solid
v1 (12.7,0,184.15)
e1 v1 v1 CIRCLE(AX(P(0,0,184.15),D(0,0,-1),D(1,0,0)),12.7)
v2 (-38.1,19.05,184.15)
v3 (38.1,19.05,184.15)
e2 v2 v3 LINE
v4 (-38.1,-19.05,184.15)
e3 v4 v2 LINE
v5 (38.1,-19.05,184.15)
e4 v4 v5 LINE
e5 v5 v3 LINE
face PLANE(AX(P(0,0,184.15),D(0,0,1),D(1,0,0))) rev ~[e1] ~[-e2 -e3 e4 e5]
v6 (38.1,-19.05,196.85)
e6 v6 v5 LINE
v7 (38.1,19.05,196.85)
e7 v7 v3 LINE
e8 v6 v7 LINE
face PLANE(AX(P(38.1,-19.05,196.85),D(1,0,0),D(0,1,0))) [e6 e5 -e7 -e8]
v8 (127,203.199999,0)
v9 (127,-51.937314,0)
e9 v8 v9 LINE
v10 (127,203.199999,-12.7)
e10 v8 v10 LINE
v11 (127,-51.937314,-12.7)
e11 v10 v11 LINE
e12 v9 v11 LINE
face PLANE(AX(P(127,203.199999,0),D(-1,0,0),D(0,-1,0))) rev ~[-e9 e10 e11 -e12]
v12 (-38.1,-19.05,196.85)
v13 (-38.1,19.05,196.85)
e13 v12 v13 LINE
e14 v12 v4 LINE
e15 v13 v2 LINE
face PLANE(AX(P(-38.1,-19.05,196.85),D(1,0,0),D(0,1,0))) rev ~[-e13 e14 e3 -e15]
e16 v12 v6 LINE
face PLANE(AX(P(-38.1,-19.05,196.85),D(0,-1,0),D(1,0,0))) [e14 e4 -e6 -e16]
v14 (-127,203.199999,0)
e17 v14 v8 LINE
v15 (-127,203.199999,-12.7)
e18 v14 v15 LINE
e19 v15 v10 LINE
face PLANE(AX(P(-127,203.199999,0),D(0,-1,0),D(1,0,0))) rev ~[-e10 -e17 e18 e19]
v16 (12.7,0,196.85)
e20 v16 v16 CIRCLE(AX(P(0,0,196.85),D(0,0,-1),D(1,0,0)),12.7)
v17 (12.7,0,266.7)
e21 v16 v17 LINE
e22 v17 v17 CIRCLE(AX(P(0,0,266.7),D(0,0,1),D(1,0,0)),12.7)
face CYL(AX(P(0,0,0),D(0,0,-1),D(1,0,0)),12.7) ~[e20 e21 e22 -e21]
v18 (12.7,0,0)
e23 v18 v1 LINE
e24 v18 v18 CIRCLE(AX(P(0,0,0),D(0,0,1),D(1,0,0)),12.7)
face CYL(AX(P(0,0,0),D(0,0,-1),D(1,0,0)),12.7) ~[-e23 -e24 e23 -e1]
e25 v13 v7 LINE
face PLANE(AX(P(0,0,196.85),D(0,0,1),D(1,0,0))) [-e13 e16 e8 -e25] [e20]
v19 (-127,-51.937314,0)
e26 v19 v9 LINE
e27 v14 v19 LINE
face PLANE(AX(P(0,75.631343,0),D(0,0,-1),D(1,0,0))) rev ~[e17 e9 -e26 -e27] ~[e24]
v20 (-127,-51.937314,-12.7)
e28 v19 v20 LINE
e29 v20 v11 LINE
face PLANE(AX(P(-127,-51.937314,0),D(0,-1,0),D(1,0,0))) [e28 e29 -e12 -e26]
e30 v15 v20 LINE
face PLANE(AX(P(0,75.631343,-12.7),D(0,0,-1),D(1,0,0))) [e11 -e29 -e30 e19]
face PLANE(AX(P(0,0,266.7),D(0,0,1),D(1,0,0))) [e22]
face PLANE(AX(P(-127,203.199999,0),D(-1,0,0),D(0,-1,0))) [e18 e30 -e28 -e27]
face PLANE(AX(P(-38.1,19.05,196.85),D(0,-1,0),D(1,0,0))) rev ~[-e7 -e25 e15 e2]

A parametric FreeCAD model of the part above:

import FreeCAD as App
import Part
import Sketcher

V = App.Vector
Q = App.Units.Quantity


def add_polygon(sketch, points):
    """Adds a closed chain of lines whose ends are joined by coincident constraints."""
    first, n = sketch.GeometryCount, len(points)
    for a, b in zip(points, points[1:] + points[:1]):
        sketch.addGeometry(Part.LineSegment(App.Vector(*a, 0), App.Vector(*b, 0)), False)
    for i in range(n):
        sketch.addConstraint(Sketcher.Constraint("Coincident", first + i, 2, first + (i + 1) % n, 1))

doc = App.newDocument("Part")
params = doc.addObject("Spreadsheet::Sheet", "Params")
for row, (alias, value) in enumerate([
    ("sketch1_diameter", "1 in"),
    ("pad1_length", "10.5 in"),
    ("sketch2_width", "3 in"),
    ("sketch2_height", "1.5 in"),
    ("pad2_length", "0.5 in"),
    ("sketch3_width", "10 in"),
    ("pad3_length", "0.5 in"),
], start=1):
    params.set(f"A{row}", alias)
    params.set(f"B{row}", "=" + value)
    params.setAlias(f"B{row}", alias)

body = doc.addObject("PartDesign::Body", "Body")

sketch1 = body.newObject("Sketcher::SketchObject", "Sketch")
sketch1.AttachmentSupport = (doc.getObject("XY_Plane"), [""])
sketch1.MapMode = "FlatFace"
sketch1.addGeometry(Part.Circle(V(0, 0, 0), V(0, 0, 1), 12.7), False)
sketch1.addConstraint([
    Sketcher.Constraint("Coincident", 0, 3, -1, 1),
    Sketcher.Constraint("Diameter", 0, Q("1 in")),
])
sketch1.setExpression("Constraints[1]", "Params.sketch1_diameter")
pad1 = body.newObject("PartDesign::Pad", "Pad")
pad1.Profile = sketch1
pad1.setExpression("Length", "Params.pad1_length")

sketch2 = body.newObject("Sketcher::SketchObject", "Sketch001")
sketch2.AttachmentSupport = (doc.getObject("XY_Plane"), [""])
sketch2.MapMode = "FlatFace"
sketch2.AttachmentOffset = App.Placement(V(0, 0, 7.75 * 25.4), App.Rotation())
add_polygon(sketch2, [(-38.1, 19.05), (-38.1, -19.05), (38.1, -19.05), (38.1, 19.05)])
sketch2.addConstraint([
    Sketcher.Constraint("Vertical", 0),
    Sketcher.Constraint("Horizontal", 1),
    Sketcher.Constraint("Vertical", 2),
    Sketcher.Constraint("Horizontal", 3),
    Sketcher.Constraint("Symmetric", 0, 2, 2, 2, -1, 1),
    Sketcher.Constraint("DistanceX", 1, 1, 1, 2, Q("3 in")),
    Sketcher.Constraint("DistanceY", 0, 2, 0, 1, Q("1.5 in")),
])
sketch2.setExpression("Constraints[9]", "Params.sketch2_width")
sketch2.setExpression("Constraints[10]", "Params.sketch2_height")
pad2 = body.newObject("PartDesign::Pad", "Pad001")
pad2.Profile = sketch2
pad2.setExpression("Length", "Params.pad2_length")
pad2.Reversed = True

sketch3 = body.newObject("Sketcher::SketchObject", "Sketch002")
sketch3.AttachmentSupport = (doc.getObject("XY_Plane"), [""])
sketch3.MapMode = "FlatFace"
add_polygon(sketch3, [(-127, -51.937314), (-127, 203.199999), (127, 203.199999), (127, -51.937314)])
sketch3.addConstraint([
    Sketcher.Constraint("Vertical", 0),
    Sketcher.Constraint("Horizontal", 1),
    Sketcher.Constraint("Vertical", 2),
    Sketcher.Constraint("Horizontal", 3),
    Sketcher.Constraint("DistanceX", 1, 1, 1, 2, Q("10 in")),
    Sketcher.Constraint("DistanceX", 0, 2, -1, 1, Q("5 in")),
    Sketcher.Constraint("DistanceY", -1, 1, 0, 2, Q("8 in")),
    Sketcher.Constraint("DistanceY", 0, 1, 0, 2, Q("255.137313 mm")),
])
sketch3.setExpression("Constraints[8]", "Params.sketch3_width")
pad3 = body.newObject("PartDesign::Pad", "Pad002")
pad3.Profile = sketch3
pad3.setExpression("Length", "Params.pad3_length")
pad3.Reversed = True

doc.recompute()
